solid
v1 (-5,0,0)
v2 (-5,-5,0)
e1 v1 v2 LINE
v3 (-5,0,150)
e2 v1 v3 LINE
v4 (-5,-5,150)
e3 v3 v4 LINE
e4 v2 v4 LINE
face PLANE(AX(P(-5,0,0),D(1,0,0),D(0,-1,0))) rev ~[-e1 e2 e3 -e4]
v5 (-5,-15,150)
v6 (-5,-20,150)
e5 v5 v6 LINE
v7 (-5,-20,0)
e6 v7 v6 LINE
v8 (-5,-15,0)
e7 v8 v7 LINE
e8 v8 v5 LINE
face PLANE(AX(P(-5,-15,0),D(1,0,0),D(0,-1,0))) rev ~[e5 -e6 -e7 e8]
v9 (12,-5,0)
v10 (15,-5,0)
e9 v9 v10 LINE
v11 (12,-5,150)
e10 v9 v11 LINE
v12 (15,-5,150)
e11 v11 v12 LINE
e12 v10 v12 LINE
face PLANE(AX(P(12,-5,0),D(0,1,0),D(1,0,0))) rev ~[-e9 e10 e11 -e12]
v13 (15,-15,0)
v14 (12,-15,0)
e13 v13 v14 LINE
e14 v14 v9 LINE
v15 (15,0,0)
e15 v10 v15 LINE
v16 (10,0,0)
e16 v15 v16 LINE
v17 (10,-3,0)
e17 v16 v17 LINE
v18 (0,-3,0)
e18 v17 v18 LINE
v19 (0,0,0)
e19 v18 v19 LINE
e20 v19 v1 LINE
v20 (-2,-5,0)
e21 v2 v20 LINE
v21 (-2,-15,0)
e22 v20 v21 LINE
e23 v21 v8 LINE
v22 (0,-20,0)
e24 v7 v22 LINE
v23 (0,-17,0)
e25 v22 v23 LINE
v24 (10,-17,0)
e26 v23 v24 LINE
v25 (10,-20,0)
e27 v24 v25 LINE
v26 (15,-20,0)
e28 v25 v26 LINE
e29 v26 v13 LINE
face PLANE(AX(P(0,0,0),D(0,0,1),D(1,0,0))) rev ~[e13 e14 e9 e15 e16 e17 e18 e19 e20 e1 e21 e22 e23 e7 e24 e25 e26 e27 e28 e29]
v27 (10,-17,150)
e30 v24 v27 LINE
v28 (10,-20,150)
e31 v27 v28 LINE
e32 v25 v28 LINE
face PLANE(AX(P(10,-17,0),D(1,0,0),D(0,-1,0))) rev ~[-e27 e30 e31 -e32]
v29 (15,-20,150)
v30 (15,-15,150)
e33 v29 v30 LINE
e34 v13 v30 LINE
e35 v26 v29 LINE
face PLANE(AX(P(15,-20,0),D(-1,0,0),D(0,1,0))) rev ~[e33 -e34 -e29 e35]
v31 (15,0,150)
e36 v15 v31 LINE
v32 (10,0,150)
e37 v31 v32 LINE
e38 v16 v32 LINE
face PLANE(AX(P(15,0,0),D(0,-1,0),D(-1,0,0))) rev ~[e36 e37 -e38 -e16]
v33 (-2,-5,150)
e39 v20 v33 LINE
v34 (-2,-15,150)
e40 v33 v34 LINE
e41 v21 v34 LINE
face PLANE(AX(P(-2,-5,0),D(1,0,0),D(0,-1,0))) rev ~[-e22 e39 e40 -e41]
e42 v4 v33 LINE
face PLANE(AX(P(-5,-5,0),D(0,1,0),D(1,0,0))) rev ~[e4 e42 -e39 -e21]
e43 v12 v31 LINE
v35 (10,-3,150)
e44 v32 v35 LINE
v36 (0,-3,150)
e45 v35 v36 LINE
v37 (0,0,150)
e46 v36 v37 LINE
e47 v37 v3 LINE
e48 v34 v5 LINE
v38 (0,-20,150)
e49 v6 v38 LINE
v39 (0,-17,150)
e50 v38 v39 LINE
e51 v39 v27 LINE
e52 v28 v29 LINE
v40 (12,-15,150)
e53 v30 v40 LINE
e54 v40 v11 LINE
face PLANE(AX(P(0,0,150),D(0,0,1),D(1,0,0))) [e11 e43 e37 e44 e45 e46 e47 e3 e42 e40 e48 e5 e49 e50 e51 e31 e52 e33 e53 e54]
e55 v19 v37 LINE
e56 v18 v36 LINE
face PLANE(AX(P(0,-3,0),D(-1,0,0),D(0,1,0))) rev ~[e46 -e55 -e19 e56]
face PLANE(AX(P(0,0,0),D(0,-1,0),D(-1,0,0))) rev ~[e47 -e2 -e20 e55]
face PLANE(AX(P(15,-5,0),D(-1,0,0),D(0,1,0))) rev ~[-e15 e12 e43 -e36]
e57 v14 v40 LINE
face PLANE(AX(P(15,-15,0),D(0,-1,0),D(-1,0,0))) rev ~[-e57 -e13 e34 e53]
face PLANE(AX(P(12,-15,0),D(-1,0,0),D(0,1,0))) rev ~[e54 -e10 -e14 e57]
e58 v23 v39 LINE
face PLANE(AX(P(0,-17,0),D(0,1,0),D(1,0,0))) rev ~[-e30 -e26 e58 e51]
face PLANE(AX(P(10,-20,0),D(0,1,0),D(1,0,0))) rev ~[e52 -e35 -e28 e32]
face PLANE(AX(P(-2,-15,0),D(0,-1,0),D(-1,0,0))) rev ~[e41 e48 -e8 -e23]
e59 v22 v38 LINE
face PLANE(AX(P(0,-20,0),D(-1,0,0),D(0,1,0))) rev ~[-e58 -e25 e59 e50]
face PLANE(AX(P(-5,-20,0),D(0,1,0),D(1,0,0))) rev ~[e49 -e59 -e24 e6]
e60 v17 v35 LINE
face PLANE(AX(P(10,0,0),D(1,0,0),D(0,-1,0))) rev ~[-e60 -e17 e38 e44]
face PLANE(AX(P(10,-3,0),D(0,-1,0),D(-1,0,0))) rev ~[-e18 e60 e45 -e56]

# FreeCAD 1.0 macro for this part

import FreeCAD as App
import Part
import Sketcher
from FreeCAD import Vector
Q = App.Units.Quantity

doc = App.newDocument("Part")
body = doc.addObject("PartDesign::Body", "Body")

sketch1 = doc.addObject("Sketcher::SketchObject", "Sketch")
body.addObject(sketch1)
sketch1.AttachmentSupport = (doc.XY_Plane, [""])
sketch1.MapMode = "FlatFace"
sketch1.addGeometry([
    Part.LineSegment(Vector(0, -3, 0), Vector(0, 0, 0)),
    Part.LineSegment(Vector(0, 0, 0), Vector(-5, 0, 0)),
    Part.LineSegment(Vector(-5, 0, 0), Vector(-5, -5, 0)),
    Part.LineSegment(Vector(-5, -5, 0), Vector(-2, -5, 0)),
    Part.LineSegment(Vector(-2, -5, 0), Vector(-2, -15, 0)),
    Part.LineSegment(Vector(-2, -15, 0), Vector(-5, -15, 0)),
    Part.LineSegment(Vector(-5, -15, 0), Vector(-5, -20, 0)),
    Part.LineSegment(Vector(-5, -20, 0), Vector(0, -20, 0)),
    Part.LineSegment(Vector(0, -20, 0), Vector(0, -17, 0)),
    Part.LineSegment(Vector(0, -17, 0), Vector(10, -17, 0)),
    Part.LineSegment(Vector(10, -17, 0), Vector(10, -20, 0)),
    Part.LineSegment(Vector(10, -20, 0), Vector(15, -20, 0)),
    Part.LineSegment(Vector(15, -20, 0), Vector(15, -15, 0)),
    Part.LineSegment(Vector(15, -15, 0), Vector(12, -15, 0)),
    Part.LineSegment(Vector(12, -15, 0), Vector(12, -5, 0)),
    Part.LineSegment(Vector(12, -5, 0), Vector(15, -5, 0)),
    Part.LineSegment(Vector(15, -5, 0), Vector(15, 0, 0)),
    Part.LineSegment(Vector(15, 0, 0), Vector(10, 0, 0)),
    Part.LineSegment(Vector(10, 0, 0), Vector(10, -3, 0)),
    Part.LineSegment(Vector(10, -3, 0), Vector(0, -3, 0)),
], False)
sketch1.addConstraint([
    Sketcher.Constraint("Coincident", 0, 2, 1, 1),
    Sketcher.Constraint("Coincident", 1, 2, 2, 1),
    Sketcher.Constraint("Coincident", 2, 2, 3, 1),
    Sketcher.Constraint("Coincident", 3, 2, 4, 1),
    Sketcher.Constraint("Coincident", 4, 2, 5, 1),
    Sketcher.Constraint("Coincident", 5, 2, 6, 1),
    Sketcher.Constraint("Coincident", 6, 2, 7, 1),
    Sketcher.Constraint("Coincident", 7, 2, 8, 1),
    Sketcher.Constraint("Coincident", 8, 2, 9, 1),
    Sketcher.Constraint("Coincident", 9, 2, 10, 1),
    Sketcher.Constraint("Coincident", 10, 2, 11, 1),
    Sketcher.Constraint("Coincident", 11, 2, 12, 1),
    Sketcher.Constraint("Coincident", 12, 2, 13, 1),
    Sketcher.Constraint("Coincident", 13, 2, 14, 1),
    Sketcher.Constraint("Coincident", 14, 2, 15, 1),
    Sketcher.Constraint("Coincident", 15, 2, 16, 1),
    Sketcher.Constraint("Coincident", 16, 2, 17, 1),
    Sketcher.Constraint("Coincident", 17, 2, 18, 1),
    Sketcher.Constraint("Coincident", 18, 2, 19, 1),
    Sketcher.Constraint("Coincident", 19, 2, 0, 1),
    Sketcher.Constraint("Vertical", 0),
    Sketcher.Constraint("Horizontal", 1),
    Sketcher.Constraint("Vertical", 2),
    Sketcher.Constraint("Horizontal", 3),
    Sketcher.Constraint("Vertical", 4),
    Sketcher.Constraint("Horizontal", 5),
    Sketcher.Constraint("Vertical", 6),
    Sketcher.Constraint("Horizontal", 7),
    Sketcher.Constraint("Vertical", 8),
    Sketcher.Constraint("Horizontal", 9),
    Sketcher.Constraint("Vertical", 10),
    Sketcher.Constraint("Horizontal", 11),
    Sketcher.Constraint("Vertical", 12),
    Sketcher.Constraint("Horizontal", 13),
    Sketcher.Constraint("Vertical", 14),
    Sketcher.Constraint("Horizontal", 15),
    Sketcher.Constraint("Vertical", 16),
    Sketcher.Constraint("Horizontal", 17),
    Sketcher.Constraint("Vertical", 18),
    Sketcher.Constraint("Horizontal", 19),
    Sketcher.Constraint("Coincident", 0, 2, -1, 1),
    Sketcher.Constraint("PointOnObject", 7, 2, -2),
    Sketcher.Constraint("PointOnObject", 16, 2, -1),
    Sketcher.Constraint("Horizontal", 7, 2, 10, 2),
    Sketcher.Constraint("Horizontal", 5, 2, 12, 2),
    Sketcher.Constraint("Horizontal", 3, 2, 14, 2),
    Sketcher.Constraint("Vertical", 2, 2, 5, 2),
    Sketcher.Constraint("Vertical", 12, 2, 15, 2),
    Sketcher.Constraint("Vertical", 10, 2, 17, 2),
    Sketcher.Constraint("Equal", 7, 11),
    Sketcher.Constraint("Equal", 5, 13),
    Sketcher.Constraint("Equal", 15, 0),
    Sketcher.Constraint("Equal", 17, 2),
    Sketcher.Constraint("Equal", 19, 4),
    Sketcher.Constraint("Equal", 2, 6),
    Sketcher.Constraint("Equal", 0, 8),
    Sketcher.Constraint("DistanceX", 1, 2, 1, 1, Q("5 mm")),
    Sketcher.Constraint("DistanceX", 3, 1, 3, 2, Q("3 mm")),
    Sketcher.Constraint("DistanceX", 9, 1, 9, 2, Q("10 mm")),
])
pad1 = doc.addObject("PartDesign::Pad", "Pad")
body.addObject(pad1)
pad1.Profile = sketch1
pad1.Length = 150

doc.recompute()
